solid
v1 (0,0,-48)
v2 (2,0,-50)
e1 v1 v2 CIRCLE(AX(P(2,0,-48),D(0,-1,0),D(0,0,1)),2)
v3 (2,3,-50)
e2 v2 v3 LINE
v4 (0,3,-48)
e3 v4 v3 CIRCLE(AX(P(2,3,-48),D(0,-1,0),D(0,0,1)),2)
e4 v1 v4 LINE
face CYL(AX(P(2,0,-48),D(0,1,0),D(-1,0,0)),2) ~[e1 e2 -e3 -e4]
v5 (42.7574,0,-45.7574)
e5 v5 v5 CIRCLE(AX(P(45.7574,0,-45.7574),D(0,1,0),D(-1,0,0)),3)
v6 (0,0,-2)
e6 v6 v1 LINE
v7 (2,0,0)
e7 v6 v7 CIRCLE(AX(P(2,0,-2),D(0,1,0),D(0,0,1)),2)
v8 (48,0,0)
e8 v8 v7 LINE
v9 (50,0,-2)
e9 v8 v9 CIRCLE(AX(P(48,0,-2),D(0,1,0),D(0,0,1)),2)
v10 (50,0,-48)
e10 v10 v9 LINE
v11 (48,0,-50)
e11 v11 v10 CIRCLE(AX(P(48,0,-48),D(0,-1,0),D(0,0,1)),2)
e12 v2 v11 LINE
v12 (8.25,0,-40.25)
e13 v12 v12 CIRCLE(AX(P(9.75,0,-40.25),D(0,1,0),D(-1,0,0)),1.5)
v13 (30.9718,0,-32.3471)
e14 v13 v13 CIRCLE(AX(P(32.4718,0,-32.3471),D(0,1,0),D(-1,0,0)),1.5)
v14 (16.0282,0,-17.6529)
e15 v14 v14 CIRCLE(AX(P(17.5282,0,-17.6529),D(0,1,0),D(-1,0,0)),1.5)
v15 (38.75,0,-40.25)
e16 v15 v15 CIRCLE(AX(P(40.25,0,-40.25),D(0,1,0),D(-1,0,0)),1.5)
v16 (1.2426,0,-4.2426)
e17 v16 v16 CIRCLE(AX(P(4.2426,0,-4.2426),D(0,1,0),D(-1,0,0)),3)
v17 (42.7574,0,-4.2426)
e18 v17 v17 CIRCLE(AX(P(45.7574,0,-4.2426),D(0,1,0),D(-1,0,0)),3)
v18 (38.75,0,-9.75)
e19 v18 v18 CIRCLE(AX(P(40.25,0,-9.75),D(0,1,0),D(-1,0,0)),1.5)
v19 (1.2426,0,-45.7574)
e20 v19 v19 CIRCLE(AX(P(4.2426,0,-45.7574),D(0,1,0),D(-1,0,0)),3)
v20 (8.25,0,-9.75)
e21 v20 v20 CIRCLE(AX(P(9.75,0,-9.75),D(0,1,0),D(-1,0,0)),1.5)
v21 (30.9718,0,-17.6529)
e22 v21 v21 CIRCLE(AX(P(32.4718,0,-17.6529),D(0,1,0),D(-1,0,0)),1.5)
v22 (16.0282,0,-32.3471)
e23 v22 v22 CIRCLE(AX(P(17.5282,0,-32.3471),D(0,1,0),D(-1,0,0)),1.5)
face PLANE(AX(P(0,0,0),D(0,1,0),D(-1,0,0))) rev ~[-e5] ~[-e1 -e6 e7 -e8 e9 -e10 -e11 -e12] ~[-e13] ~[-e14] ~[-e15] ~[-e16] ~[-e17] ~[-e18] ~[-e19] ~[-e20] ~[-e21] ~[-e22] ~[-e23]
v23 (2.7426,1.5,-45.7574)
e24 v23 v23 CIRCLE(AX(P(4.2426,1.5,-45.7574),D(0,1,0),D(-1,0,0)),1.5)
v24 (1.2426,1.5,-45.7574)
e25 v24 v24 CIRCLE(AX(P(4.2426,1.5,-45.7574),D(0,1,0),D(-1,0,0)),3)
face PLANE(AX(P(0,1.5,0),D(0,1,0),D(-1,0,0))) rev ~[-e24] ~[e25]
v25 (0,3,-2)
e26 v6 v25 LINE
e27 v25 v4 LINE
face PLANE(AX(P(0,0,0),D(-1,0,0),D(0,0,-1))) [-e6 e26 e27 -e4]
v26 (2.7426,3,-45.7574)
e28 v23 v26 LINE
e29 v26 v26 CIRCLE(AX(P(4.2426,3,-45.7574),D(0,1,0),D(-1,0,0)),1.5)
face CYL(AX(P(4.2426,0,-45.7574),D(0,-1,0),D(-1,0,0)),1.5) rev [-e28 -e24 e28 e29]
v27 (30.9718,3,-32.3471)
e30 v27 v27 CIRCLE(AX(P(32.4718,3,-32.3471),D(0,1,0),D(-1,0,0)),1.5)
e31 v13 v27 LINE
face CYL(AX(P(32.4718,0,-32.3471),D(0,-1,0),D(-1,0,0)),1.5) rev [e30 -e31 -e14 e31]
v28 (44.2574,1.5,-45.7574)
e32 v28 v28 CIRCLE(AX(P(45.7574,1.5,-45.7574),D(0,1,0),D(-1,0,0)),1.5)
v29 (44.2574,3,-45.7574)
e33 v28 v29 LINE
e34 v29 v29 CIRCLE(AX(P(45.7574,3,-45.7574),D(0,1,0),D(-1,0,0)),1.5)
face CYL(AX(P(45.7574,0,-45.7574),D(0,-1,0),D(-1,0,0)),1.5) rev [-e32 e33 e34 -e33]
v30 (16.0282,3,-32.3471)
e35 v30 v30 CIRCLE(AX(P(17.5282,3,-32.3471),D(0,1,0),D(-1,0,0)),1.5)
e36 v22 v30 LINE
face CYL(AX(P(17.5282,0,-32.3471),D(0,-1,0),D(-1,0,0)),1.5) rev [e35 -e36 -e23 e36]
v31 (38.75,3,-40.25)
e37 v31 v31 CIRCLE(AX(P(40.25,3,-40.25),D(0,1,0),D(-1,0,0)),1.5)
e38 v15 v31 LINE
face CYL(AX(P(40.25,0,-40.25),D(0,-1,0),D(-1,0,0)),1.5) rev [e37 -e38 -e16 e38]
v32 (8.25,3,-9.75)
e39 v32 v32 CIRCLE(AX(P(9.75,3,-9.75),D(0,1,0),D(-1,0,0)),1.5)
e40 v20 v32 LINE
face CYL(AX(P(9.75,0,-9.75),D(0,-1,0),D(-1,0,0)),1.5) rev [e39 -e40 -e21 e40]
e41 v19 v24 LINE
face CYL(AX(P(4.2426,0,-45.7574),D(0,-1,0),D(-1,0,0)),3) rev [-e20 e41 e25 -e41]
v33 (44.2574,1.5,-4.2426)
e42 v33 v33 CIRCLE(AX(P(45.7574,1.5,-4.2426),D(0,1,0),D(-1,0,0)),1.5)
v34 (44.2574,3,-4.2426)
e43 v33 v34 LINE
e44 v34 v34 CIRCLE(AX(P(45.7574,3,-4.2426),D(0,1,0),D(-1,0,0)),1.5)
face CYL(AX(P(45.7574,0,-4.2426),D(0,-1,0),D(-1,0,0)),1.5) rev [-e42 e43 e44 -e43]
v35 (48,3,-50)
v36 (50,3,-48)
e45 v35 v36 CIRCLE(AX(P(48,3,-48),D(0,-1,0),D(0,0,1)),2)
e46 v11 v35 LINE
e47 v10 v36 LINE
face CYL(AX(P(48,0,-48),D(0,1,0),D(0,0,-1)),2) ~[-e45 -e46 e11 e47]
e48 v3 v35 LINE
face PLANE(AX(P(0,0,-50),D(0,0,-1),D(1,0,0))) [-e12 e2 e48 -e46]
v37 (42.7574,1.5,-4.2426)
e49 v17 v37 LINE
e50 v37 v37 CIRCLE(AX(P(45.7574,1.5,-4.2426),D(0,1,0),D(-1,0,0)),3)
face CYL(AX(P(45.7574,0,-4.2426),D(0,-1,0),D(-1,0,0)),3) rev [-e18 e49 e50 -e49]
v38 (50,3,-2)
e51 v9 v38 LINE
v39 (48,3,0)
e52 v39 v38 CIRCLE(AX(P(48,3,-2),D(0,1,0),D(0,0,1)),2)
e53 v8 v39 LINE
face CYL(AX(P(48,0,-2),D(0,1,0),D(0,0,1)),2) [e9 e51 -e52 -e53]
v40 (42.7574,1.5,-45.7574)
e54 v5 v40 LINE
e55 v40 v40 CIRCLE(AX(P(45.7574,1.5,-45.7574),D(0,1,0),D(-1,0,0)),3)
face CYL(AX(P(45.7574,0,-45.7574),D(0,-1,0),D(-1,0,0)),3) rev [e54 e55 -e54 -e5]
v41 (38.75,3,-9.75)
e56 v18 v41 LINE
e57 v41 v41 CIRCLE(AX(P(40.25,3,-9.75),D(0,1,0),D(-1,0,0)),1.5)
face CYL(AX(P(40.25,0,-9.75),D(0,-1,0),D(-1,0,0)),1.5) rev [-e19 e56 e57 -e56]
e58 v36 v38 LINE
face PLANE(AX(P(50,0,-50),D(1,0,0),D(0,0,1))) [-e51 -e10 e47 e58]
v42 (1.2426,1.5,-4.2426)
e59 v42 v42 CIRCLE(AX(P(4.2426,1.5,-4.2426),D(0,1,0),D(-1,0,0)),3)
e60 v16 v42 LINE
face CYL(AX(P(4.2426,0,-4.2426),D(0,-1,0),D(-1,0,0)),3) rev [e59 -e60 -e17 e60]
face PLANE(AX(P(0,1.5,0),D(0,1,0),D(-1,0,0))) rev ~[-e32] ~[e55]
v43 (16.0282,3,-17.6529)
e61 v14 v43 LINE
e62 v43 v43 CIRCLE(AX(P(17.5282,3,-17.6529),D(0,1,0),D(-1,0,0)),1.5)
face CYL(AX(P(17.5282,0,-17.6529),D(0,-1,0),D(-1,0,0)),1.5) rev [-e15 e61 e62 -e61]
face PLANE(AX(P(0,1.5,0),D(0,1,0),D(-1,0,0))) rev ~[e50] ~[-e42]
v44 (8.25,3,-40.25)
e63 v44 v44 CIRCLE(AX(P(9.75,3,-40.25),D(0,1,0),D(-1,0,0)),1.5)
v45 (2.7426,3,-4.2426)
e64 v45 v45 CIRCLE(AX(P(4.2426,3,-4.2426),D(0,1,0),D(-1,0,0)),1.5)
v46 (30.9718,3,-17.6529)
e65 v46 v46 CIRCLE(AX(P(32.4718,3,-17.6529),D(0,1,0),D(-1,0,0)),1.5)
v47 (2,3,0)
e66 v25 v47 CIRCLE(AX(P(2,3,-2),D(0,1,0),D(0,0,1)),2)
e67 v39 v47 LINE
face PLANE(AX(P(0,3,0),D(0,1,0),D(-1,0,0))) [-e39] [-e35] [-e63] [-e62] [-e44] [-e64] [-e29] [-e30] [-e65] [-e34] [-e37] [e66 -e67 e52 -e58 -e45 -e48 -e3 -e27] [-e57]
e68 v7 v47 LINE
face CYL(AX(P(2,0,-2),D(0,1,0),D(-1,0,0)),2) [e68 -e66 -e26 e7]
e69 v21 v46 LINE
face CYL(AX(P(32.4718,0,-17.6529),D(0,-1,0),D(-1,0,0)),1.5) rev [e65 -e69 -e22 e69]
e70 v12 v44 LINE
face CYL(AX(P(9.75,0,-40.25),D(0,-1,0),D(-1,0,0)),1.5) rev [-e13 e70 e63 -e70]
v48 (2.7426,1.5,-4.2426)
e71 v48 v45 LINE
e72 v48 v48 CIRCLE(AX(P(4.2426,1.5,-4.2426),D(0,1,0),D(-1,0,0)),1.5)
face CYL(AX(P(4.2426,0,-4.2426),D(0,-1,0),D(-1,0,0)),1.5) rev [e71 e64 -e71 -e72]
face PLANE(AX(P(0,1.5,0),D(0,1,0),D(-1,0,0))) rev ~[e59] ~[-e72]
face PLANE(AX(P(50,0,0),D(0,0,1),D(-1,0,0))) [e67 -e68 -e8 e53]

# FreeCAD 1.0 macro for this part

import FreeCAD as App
import Part
import Sketcher
from FreeCAD import Vector
Q = App.Units.Quantity


def edges_at(feature, points):
    """Names of the edges that pass closest to the given points."""
    edges = feature.Shape.Edges
    near = lambda p: min(range(len(edges)), key=lambda i: edges[i].distToShape(Part.Vertex(*p))[0])
    return sorted({f"Edge{near(p) + 1}" for p in points})


def add_polygon(sketch, points):
    """Adds a closed chain of lines whose ends are joined by coincident constraints."""
    first, n = sketch.GeometryCount, len(points)
    for a, b in zip(points, points[1:] + points[:1]):
        sketch.addGeometry(Part.LineSegment(App.Vector(*a, 0), App.Vector(*b, 0)), False)
    for i in range(n):
        sketch.addConstraint(Sketcher.Constraint("Coincident", first + i, 2, first + (i + 1) % n, 1))

doc = App.newDocument("Part")
body = doc.addObject("PartDesign::Body", "Body")

sketch1 = body.newObject("Sketcher::SketchObject", "Sketch")
sketch1.AttachmentSupport = (doc.getObject("XZ_Plane"), [""])
sketch1.MapMode = "FlatFace"
add_polygon(sketch1, [(0, -50), (0, 0), (50, 0), (50, -50)])
sketch1.addGeometry(Part.Circle(Vector(40.25, -40.25, 0), Vector(0, 0, 1), 1.5), False)
sketch1.addGeometry(Part.Circle(Vector(32.4718, -32.3471, 0), Vector(0, 0, 1), 1.5), False)
sketch1.addGeometry(Part.Circle(Vector(40.25, -9.75, 0), Vector(0, 0, 1), 1.5), False)
sketch1.addGeometry(Part.Circle(Vector(32.4718, -17.6529, 0), Vector(0, 0, 1), 1.5), False)
sketch1.addGeometry(Part.Circle(Vector(17.5282, -32.3471, 0), Vector(0, 0, 1), 1.5), False)
sketch1.addGeometry(Part.Circle(Vector(9.75, -40.25, 0), Vector(0, 0, 1), 1.5), False)
sketch1.addGeometry(Part.Circle(Vector(17.5282, -17.6529, 0), Vector(0, 0, 1), 1.5), False)
sketch1.addGeometry(Part.Circle(Vector(9.75, -9.75, 0), Vector(0, 0, 1), 1.5), False)
sketch1.addGeometry(Part.Circle(Vector(45.7574, -45.7574, 0), Vector(0, 0, 1), 1.5), False)
sketch1.addGeometry(Part.Circle(Vector(4.2426, -45.7574, 0), Vector(0, 0, 1), 1.5), False)
sketch1.addGeometry(Part.Circle(Vector(45.7574, -4.2426, 0), Vector(0, 0, 1), 1.5), False)
sketch1.addGeometry(Part.Circle(Vector(4.2426, -4.2426, 0), Vector(0, 0, 1), 1.5), False)
sketch1.addConstraint(Sketcher.Constraint("Vertical", 0))
sketch1.addConstraint(Sketcher.Constraint("Horizontal", 1))
sketch1.addConstraint(Sketcher.Constraint("Vertical", 2))
sketch1.addConstraint(Sketcher.Constraint("Horizontal", 3))
sketch1.addConstraint(Sketcher.Constraint("Coincident", 0, 2, -1, 1))
sketch1.addConstraint(Sketcher.Constraint("Equal", 4, 5))
sketch1.addConstraint(Sketcher.Constraint("Equal", 5, 6))
sketch1.addConstraint(Sketcher.Constraint("Equal", 6, 7))
sketch1.addConstraint(Sketcher.Constraint("Equal", 7, 8))
sketch1.addConstraint(Sketcher.Constraint("Equal", 8, 9))
sketch1.addConstraint(Sketcher.Constraint("Equal", 9, 10))
sketch1.addConstraint(Sketcher.Constraint("Equal", 10, 11))
sketch1.addConstraint(Sketcher.Constraint("Equal", 11, 12))
sketch1.addConstraint(Sketcher.Constraint("Equal", 12, 13))
sketch1.addConstraint(Sketcher.Constraint("Equal", 13, 14))
sketch1.addConstraint(Sketcher.Constraint("Equal", 14, 15))
sketch1.addConstraint(Sketcher.Constraint("Horizontal", 5, 3, 8, 3))
sketch1.addConstraint(Sketcher.Constraint("Horizontal", 4, 3, 9, 3))
sketch1.addConstraint(Sketcher.Constraint("Horizontal", 7, 3, 10, 3))
sketch1.addConstraint(Sketcher.Constraint("Horizontal", 6, 3, 11, 3))
sketch1.addConstraint(Sketcher.Constraint("Horizontal", 12, 3, 13, 3))
sketch1.addConstraint(Sketcher.Constraint("Horizontal", 14, 3, 15, 3))
sketch1.addConstraint(Sketcher.Constraint("Vertical", 4, 3, 6, 3))
sketch1.addConstraint(Sketcher.Constraint("Vertical", 5, 3, 7, 3))
sketch1.addConstraint(Sketcher.Constraint("Vertical", 8, 3, 10, 3))
sketch1.addConstraint(Sketcher.Constraint("Vertical", 9, 3, 11, 3))
sketch1.addConstraint(Sketcher.Constraint("Vertical", 12, 3, 14, 3))
sketch1.addConstraint(Sketcher.Constraint("Vertical", 13, 3, 15, 3))
sketch1.addConstraint(Sketcher.Constraint("Equal", 3, 0))
sketch1.addConstraint(Sketcher.Constraint("Diameter", 4, Q("3 mm")))
sketch1.addConstraint(Sketcher.Constraint("DistanceX", 1, 1, 1, 2, Q("50 mm")))
sketch1.addConstraint(Sketcher.Constraint("DistanceY", 4, 3, 6, 3, Q("30.5 mm")))
sketch1.addConstraint(Sketcher.Constraint("DistanceX", 9, 3, 4, 3, Q("30.5 mm")))
sketch1.addConstraint(Sketcher.Constraint("DistanceX", -1, 1, 4, 3, Q("40.25 mm")))
sketch1.addConstraint(Sketcher.Constraint("DistanceY", 4, 3, -1, 1, Q("40.25 mm")))
sketch1.addConstraint(Sketcher.Constraint("DistanceY", 5, 3, -1, 1, Q("32.347 mm")))
sketch1.addConstraint(Sketcher.Constraint("DistanceY", 7, 3, -1, 1, Q("17.653 mm")))
sketch1.addConstraint(Sketcher.Constraint("DistanceX", -1, 1, 5, 3, Q("32.4718 mm")))
sketch1.addConstraint(Sketcher.Constraint("DistanceX", -1, 1, 8, 3, Q("17.5282 mm")))
sketch1.addConstraint(Sketcher.Constraint("DistanceX", -1, 1, 12, 3, Q("45.7574 mm")))
sketch1.addConstraint(Sketcher.Constraint("DistanceY", 12, 3, -1, 1, Q("45.7574 mm")))
sketch1.addConstraint(Sketcher.Constraint("DistanceX", -1, 1, 13, 3, Q("4.2426 mm")))
sketch1.addConstraint(Sketcher.Constraint("DistanceY", 14, 3, -1, 1, Q("4.2426 mm")))
pad1 = body.newObject("PartDesign::Pad", "Pad")
pad1.Profile = sketch1
pad1.Length = 3
pad1.Reversed = True
doc.recompute()

fillet = body.newObject("PartDesign::Fillet", "Fillet")
fillet.Base = (pad1, edges_at(pad1, [
    (0, 1.5, -50),
    (50, 1.5, -50),
    (50, 1.5, 0),
    (0, 1.5, 0),
]))
fillet.Radius = 2

sketch2 = body.newObject("Sketcher::SketchObject", "Sketch001")
sketch2.AttachmentSupport = (doc.getObject("XZ_Plane"), [""])
sketch2.MapMode = "FlatFace"
sketch2.addGeometry(Part.Circle(Vector(4.2426, -4.2426, 0), Vector(0, 0, 1), 3), False)
sketch2.addGeometry(Part.Circle(Vector(4.2426, -4.2426, 0), Vector(0, 0, 1), 1.5), False)
sketch2.addGeometry(Part.Circle(Vector(4.2426, -45.7574, 0), Vector(0, 0, 1), 3), False)
sketch2.addGeometry(Part.Circle(Vector(4.2426, -45.7574, 0), Vector(0, 0, 1), 1.5), False)
sketch2.addGeometry(Part.Circle(Vector(45.7574, -45.7574, 0), Vector(0, 0, 1), 3), False)
sketch2.addGeometry(Part.Circle(Vector(45.7574, -45.7574, 0), Vector(0, 0, 1), 1.5), False)
sketch2.addGeometry(Part.Circle(Vector(45.7574, -4.2426, 0), Vector(0, 0, 1), 3), False)
sketch2.addGeometry(Part.Circle(Vector(45.7574, -4.2426, 0), Vector(0, 0, 1), 1.5), False)
sketch2.addConstraint(Sketcher.Constraint("Coincident", 1, 3, 0, 3))
sketch2.addConstraint(Sketcher.Constraint("Coincident", 3, 3, 2, 3))
sketch2.addConstraint(Sketcher.Constraint("Coincident", 5, 3, 4, 3))
sketch2.addConstraint(Sketcher.Constraint("Coincident", 7, 3, 6, 3))
sketch2.addConstraint(Sketcher.Constraint("Equal", 0, 2))
sketch2.addConstraint(Sketcher.Constraint("Equal", 1, 3))
sketch2.addConstraint(Sketcher.Constraint("Equal", 2, 4))
sketch2.addConstraint(Sketcher.Constraint("Equal", 3, 5))
sketch2.addConstraint(Sketcher.Constraint("Equal", 4, 6))
sketch2.addConstraint(Sketcher.Constraint("Equal", 5, 7))
sketch2.addConstraint(Sketcher.Constraint("Horizontal", 3, 3, 4, 3))
sketch2.addConstraint(Sketcher.Constraint("Horizontal", 1, 3, 6, 3))
sketch2.addConstraint(Sketcher.Constraint("Vertical", 1, 3, 2, 3))
sketch2.addConstraint(Sketcher.Constraint("Vertical", 5, 3, 6, 3))
sketch2.addConstraint(Sketcher.Constraint("Diameter", 0, Q("6 mm")))
sketch2.addConstraint(Sketcher.Constraint("Diameter", 1, Q("3 mm")))
sketch2.addConstraint(Sketcher.Constraint("DistanceX", -1, 1, 0, 3, Q("4.2426 mm")))
sketch2.addConstraint(Sketcher.Constraint("DistanceY", 0, 3, -1, 1, Q("4.2426 mm")))
sketch2.addConstraint(Sketcher.Constraint("DistanceY", 2, 3, -1, 1, Q("45.7574 mm")))
sketch2.addConstraint(Sketcher.Constraint("DistanceX", -1, 1, 4, 3, Q("45.7574 mm")))
pocket1 = body.newObject("PartDesign::Pocket", "Pocket")
pocket1.Profile = sketch2
pocket1.Length = 1.5

doc.recompute()
